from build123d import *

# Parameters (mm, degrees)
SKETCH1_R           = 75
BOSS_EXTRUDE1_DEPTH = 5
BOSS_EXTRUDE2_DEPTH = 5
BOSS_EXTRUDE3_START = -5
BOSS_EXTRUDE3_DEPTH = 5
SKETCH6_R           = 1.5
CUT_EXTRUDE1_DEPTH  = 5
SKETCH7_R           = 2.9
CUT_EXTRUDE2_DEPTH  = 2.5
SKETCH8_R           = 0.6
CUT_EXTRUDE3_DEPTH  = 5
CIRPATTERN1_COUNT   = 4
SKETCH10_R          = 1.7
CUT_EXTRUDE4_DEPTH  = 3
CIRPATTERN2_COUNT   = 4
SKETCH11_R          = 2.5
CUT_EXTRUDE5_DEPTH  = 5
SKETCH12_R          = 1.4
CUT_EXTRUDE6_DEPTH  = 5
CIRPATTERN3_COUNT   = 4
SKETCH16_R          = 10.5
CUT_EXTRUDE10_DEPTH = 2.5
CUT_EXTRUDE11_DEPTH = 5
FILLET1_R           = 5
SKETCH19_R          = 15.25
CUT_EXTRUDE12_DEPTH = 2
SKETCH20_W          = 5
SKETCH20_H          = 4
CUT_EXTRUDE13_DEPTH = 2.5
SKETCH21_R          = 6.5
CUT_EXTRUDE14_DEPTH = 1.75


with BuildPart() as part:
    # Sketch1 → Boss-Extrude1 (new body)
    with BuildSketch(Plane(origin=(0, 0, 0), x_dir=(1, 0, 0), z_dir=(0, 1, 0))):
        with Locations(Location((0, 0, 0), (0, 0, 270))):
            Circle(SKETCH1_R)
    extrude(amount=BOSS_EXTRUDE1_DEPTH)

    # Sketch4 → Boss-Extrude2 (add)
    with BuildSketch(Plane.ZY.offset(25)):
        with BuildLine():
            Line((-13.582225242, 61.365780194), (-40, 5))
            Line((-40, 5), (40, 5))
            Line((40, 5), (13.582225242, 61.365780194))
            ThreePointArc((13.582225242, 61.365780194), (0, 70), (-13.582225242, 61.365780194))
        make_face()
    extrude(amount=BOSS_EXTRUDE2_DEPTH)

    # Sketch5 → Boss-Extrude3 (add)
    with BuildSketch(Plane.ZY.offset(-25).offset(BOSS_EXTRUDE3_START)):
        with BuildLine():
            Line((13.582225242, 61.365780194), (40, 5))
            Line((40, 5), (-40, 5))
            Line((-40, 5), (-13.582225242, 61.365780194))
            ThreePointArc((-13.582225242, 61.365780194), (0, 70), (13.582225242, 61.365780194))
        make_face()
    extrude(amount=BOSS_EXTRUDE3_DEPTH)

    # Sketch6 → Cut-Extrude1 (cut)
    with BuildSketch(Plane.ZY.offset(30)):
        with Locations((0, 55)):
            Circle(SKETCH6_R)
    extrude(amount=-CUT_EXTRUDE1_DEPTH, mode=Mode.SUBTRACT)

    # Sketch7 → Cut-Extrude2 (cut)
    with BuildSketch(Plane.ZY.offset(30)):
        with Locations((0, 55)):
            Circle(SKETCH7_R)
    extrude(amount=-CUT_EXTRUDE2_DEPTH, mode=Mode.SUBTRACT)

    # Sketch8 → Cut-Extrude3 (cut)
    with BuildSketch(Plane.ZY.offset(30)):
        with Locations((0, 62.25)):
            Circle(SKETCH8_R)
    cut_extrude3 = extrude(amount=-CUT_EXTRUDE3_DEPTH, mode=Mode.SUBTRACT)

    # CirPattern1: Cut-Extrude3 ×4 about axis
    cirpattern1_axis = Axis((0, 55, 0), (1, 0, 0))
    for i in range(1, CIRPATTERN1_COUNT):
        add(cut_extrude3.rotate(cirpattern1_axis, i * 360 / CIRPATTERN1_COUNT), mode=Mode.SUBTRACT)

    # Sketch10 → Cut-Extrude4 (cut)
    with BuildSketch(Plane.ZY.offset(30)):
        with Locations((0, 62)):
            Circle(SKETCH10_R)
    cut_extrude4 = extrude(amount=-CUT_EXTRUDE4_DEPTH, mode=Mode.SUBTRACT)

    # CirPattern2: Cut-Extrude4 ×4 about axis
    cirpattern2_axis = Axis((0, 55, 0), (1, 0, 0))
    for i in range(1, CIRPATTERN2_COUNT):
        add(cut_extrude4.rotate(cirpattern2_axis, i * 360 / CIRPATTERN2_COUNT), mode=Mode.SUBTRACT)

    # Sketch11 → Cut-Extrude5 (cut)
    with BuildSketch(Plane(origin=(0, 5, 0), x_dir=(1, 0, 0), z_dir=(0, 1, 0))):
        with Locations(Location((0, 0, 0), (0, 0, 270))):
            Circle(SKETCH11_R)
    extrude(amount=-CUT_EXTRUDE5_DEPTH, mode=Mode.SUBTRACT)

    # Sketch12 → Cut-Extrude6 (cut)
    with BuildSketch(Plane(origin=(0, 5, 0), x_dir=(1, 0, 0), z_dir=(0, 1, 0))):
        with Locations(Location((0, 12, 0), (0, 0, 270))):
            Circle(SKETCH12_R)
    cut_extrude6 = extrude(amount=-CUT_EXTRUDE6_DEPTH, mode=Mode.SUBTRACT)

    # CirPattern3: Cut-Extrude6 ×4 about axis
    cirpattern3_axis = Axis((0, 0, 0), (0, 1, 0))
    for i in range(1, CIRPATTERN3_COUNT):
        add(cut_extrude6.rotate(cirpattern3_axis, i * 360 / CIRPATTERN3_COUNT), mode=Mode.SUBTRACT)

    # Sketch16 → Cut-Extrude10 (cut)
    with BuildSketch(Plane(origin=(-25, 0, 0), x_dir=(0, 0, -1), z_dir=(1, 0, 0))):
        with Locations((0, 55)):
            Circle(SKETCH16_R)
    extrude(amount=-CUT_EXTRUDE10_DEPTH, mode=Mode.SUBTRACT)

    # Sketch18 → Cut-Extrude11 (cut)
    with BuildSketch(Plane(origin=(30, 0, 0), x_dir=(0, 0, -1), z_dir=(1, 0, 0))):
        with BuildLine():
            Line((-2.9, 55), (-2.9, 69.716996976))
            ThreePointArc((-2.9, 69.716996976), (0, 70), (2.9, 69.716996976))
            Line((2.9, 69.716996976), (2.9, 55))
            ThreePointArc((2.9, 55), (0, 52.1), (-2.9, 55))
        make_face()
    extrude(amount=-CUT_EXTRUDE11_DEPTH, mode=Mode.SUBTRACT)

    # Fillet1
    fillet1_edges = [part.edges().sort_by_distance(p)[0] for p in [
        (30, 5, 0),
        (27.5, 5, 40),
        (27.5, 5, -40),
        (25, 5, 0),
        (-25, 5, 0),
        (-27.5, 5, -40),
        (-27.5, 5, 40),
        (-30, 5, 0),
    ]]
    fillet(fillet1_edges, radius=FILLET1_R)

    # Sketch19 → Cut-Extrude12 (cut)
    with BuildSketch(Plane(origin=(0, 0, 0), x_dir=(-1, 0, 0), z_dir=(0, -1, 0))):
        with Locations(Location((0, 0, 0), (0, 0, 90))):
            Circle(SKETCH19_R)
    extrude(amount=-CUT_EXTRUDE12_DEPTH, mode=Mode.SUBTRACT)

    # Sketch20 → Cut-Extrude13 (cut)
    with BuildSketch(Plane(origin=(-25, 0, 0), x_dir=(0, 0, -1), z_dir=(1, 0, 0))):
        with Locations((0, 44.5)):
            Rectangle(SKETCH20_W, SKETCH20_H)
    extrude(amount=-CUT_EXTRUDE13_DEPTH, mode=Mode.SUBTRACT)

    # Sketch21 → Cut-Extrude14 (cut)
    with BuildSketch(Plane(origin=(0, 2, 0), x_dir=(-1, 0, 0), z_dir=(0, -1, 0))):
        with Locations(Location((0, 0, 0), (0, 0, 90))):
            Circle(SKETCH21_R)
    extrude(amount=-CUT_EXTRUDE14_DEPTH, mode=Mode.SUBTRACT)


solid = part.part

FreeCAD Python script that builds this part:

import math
import FreeCAD as App
import Part
import Sketcher

V = App.Vector
Q = App.Units.Quantity


def edges_at(feature, points):
    """Names of the edges that pass closest to the given points."""
    edges = feature.Shape.Edges
    near = lambda p: min(range(len(edges)), key=lambda i: edges[i].distToShape(Part.Vertex(*p))[0])
    return sorted({f"Edge{near(p) + 1}" for p in points})


def add_polygon(sketch, points):
    """Adds a closed chain of lines whose ends are joined by coincident constraints."""
    first, n = sketch.GeometryCount, len(points)
    for a, b in zip(points, points[1:] + points[:1]):
        sketch.addGeometry(Part.LineSegment(App.Vector(*a, 0), App.Vector(*b, 0)), False)
    for i in range(n):
        sketch.addConstraint(Sketcher.Constraint("Coincident", first + i, 2, first + (i + 1) % n, 1))

doc = App.newDocument("Part")
body = doc.addObject("PartDesign::Body", "Body")

sketch1 = body.newObject("Sketcher::SketchObject", "Sketch")
sketch1.AttachmentSupport = (doc.getObject("XZ_Plane"), [""])
sketch1.MapMode = "FlatFace"
sketch1.addGeometry(Part.Circle(V(0, 0, 0), V(0, 0, 1), 75), False)
sketch1.addConstraint(Sketcher.Constraint("Coincident", 0, 3, -1, 1))
sketch1.addConstraint(Sketcher.Constraint("Diameter", 0, Q("150 mm")))
pad1 = body.newObject("PartDesign::Pad", "Pad")
pad1.Profile = sketch1
pad1.Length = 5
pad1.Reversed = True

sketch2 = body.newObject("Sketcher::SketchObject", "Sketch001")
sketch2.AttachmentSupport = (doc.getObject("YZ_Plane"), [""])
sketch2.MapMode = "FlatFace"
sketch2.AttachmentOffset = App.Placement(V(0, 0, -25), App.Rotation())
sketch2.addGeometry(Part.LineSegment(V(61, -14, 0), V(5, -40, 0)), False)
sketch2.addGeometry(Part.LineSegment(V(5, -40, 0), V(5, 40, 0)), False)
sketch2.addGeometry(Part.LineSegment(V(5, 40, 0), V(61, 14, 0)), False)
sketch2.addGeometry(Part.ArcOfCircle(Part.Circle(V(55, 0, 0), V(0, 0, 1), 15), math.radians(-65), math.radians(65)), False)
sketch2.addConstraint(Sketcher.Constraint("Coincident", 0, 2, 1, 1))
sketch2.addConstraint(Sketcher.Constraint("Coincident", 1, 2, 2, 1))
sketch2.addConstraint(Sketcher.Constraint("Tangent", 2, 2, 3, 2))
sketch2.addConstraint(Sketcher.Constraint("Tangent", 3, 1, 0, 1))
sketch2.addConstraint(Sketcher.Constraint("Vertical", 1))
sketch2.addConstraint(Sketcher.Constraint("Symmetric", 2, 2, 3, 1, -1))
sketch2.addConstraint(Sketcher.Constraint("Radius", 3, Q("15 mm")))
sketch2.addConstraint(Sketcher.Constraint("DistanceY", 1, 1, 1, 2, Q("80 mm")))
sketch2.addConstraint(Sketcher.Constraint("DistanceX", -1, 1, 3, 3, Q("55 mm")))
sketch2.addConstraint(Sketcher.Constraint("DistanceX", -1, 1, 0, 2, Q("5 mm")))
pad2 = body.newObject("PartDesign::Pad", "Pad001")
pad2.Profile = sketch2
pad2.Length = 5
pad2.Reversed = True

sketch3 = body.newObject("Sketcher::SketchObject", "Sketch002")
sketch3.AttachmentSupport = (doc.getObject("YZ_Plane"), [""])
sketch3.MapMode = "FlatFace"
sketch3.AttachmentOffset = App.Placement(V(0, 0, 30), App.Rotation())
sketch3.addGeometry(Part.LineSegment(V(5, 40, 0), V(61, 14, 0)), False)
sketch3.addGeometry(Part.ArcOfCircle(Part.Circle(V(55, 0, 0), V(0, 0, 1), 15), math.radians(-65), math.radians(65)), False)
sketch3.addGeometry(Part.LineSegment(V(61, -14, 0), V(5, -40, 0)), False)
sketch3.addGeometry(Part.LineSegment(V(5, -40, 0), V(5, 40, 0)), False)
sketch3.addConstraint(Sketcher.Constraint("Tangent", 0, 2, 1, 2))
sketch3.addConstraint(Sketcher.Constraint("Tangent", 1, 1, 2, 1))
sketch3.addConstraint(Sketcher.Constraint("Coincident", 2, 2, 3, 1))
sketch3.addConstraint(Sketcher.Constraint("Coincident", 3, 2, 0, 1))
sketch3.addConstraint(Sketcher.Constraint("Vertical", 3))
sketch3.addConstraint(Sketcher.Constraint("Symmetric", 0, 2, 1, 1, -1))
sketch3.addConstraint(Sketcher.Constraint("Radius", 1, Q("15 mm")))
sketch3.addConstraint(Sketcher.Constraint("DistanceY", 3, 1, 3, 2, Q("80 mm")))
sketch3.addConstraint(Sketcher.Constraint("DistanceX", -1, 1, 1, 3, Q("55 mm")))
sketch3.addConstraint(Sketcher.Constraint("DistanceX", -1, 1, 2, 2, Q("5 mm")))
pad3 = body.newObject("PartDesign::Pad", "Pad002")
pad3.Profile = sketch3
pad3.Length = 5
pad3.Reversed = True

sketch4 = body.newObject("Sketcher::SketchObject", "Sketch003")
sketch4.AttachmentSupport = (doc.getObject("YZ_Plane"), [""])
sketch4.MapMode = "FlatFace"
sketch4.AttachmentOffset = App.Placement(V(0, 0, -30), App.Rotation())
sketch4.addGeometry(Part.Circle(V(55, 0, 0), V(0, 0, 1), 1.5), False)
sketch4.addConstraint(Sketcher.Constraint("PointOnObject", 0, 3, -1))
sketch4.addConstraint(Sketcher.Constraint("Diameter", 0, Q("3 mm")))
sketch4.addConstraint(Sketcher.Constraint("DistanceX", -1, 1, 0, 3, Q("55 mm")))
pocket1 = body.newObject("PartDesign::Pocket", "Pocket")
pocket1.Profile = sketch4
pocket1.Length = 5
pocket1.Reversed = True

sketch5 = body.newObject("Sketcher::SketchObject", "Sketch004")
sketch5.AttachmentSupport = (doc.getObject("YZ_Plane"), [""])
sketch5.MapMode = "FlatFace"
sketch5.AttachmentOffset = App.Placement(V(0, 0, -30), App.Rotation())
sketch5.addGeometry(Part.Circle(V(55, 0, 0), V(0, 0, 1), 2.9), False)
sketch5.addConstraint(Sketcher.Constraint("PointOnObject", 0, 3, -1))
sketch5.addConstraint(Sketcher.Constraint("Diameter", 0, Q("5.8 mm")))
sketch5.addConstraint(Sketcher.Constraint("DistanceX", -1, 1, 0, 3, Q("55 mm")))
pocket2 = body.newObject("PartDesign::Pocket", "Pocket001")
pocket2.Profile = sketch5
pocket2.Length = 2.5
pocket2.Reversed = True

sketch6 = body.newObject("Sketcher::SketchObject", "Sketch005")
sketch6.AttachmentSupport = (doc.getObject("YZ_Plane"), [""])
sketch6.MapMode = "FlatFace"
sketch6.AttachmentOffset = App.Placement(V(0, 0, -30), App.Rotation())
sketch6.addGeometry(Part.Circle(V(62.2, 0, 0), V(0, 0, 1), 0.6), False)
sketch6.addConstraint(Sketcher.Constraint("PointOnObject", 0, 3, -1))
sketch6.addConstraint(Sketcher.Constraint("Diameter", 0, Q("1.2 mm")))
sketch6.addConstraint(Sketcher.Constraint("DistanceX", -1, 1, 0, 3, Q("62.25 mm")))
pocket3 = body.newObject("PartDesign::Pocket", "Pocket002")
pocket3.Profile = sketch6
pocket3.Length = 5
pocket3.Reversed = True
doc.recompute()

datumline = body.newObject("PartDesign::Line", "DatumLine")
datumline.Placement = App.Placement(V(0, 55, 0), App.Rotation(V(0, 0, 1), V(1, 0, 0)))
polarpattern = body.newObject("PartDesign::PolarPattern", "PolarPattern")
polarpattern.Originals = [pocket3]
polarpattern.Axis = (datumline, [""])
polarpattern.Angle = 360
polarpattern.Occurrences = 4
body.Tip = polarpattern

sketch7 = body.newObject("Sketcher::SketchObject", "Sketch006")
sketch7.AttachmentSupport = (doc.getObject("YZ_Plane"), [""])
sketch7.MapMode = "FlatFace"
sketch7.AttachmentOffset = App.Placement(V(0, 0, -30), App.Rotation())
sketch7.addGeometry(Part.Circle(V(62, 0, 0), V(0, 0, 1), 1.7), False)
sketch7.addConstraint(Sketcher.Constraint("PointOnObject", 0, 3, -1))
sketch7.addConstraint(Sketcher.Constraint("Diameter", 0, Q("3.4 mm")))
sketch7.addConstraint(Sketcher.Constraint("DistanceX", -1, 1, 0, 3, Q("62 mm")))
pocket4 = body.newObject("PartDesign::Pocket", "Pocket003")
pocket4.Profile = sketch7
pocket4.Length = 3
pocket4.Reversed = True
doc.recompute()

datumline2 = body.newObject("PartDesign::Line", "DatumLine001")
datumline2.Placement = App.Placement(V(0, 55, 0), App.Rotation(V(0, 0, 1), V(1, 0, 0)))
polarpattern2 = body.newObject("PartDesign::PolarPattern", "PolarPattern001")
polarpattern2.Originals = [pocket4]
polarpattern2.Axis = (datumline2, [""])
polarpattern2.Angle = 360
polarpattern2.Occurrences = 4
body.Tip = polarpattern2

sketch8 = body.newObject("Sketcher::SketchObject", "Sketch007")
sketch8.AttachmentSupport = (doc.getObject("XZ_Plane"), [""])
sketch8.MapMode = "FlatFace"
sketch8.AttachmentOffset = App.Placement(V(0, 0, -5), App.Rotation())
sketch8.addGeometry(Part.Circle(V(0, 0, 0), V(0, 0, 1), 2.5), False)
sketch8.addConstraint(Sketcher.Constraint("Coincident", 0, 3, -1, 1))
sketch8.addConstraint(Sketcher.Constraint("Diameter", 0, Q("5 mm")))
pocket5 = body.newObject("PartDesign::Pocket", "Pocket004")
pocket5.Profile = sketch8
pocket5.Length = 5
pocket5.Reversed = True

sketch9 = body.newObject("Sketcher::SketchObject", "Sketch008")
sketch9.AttachmentSupport = (doc.getObject("XZ_Plane"), [""])
sketch9.MapMode = "FlatFace"
sketch9.AttachmentOffset = App.Placement(V(0, 0, -5), App.Rotation())
sketch9.addGeometry(Part.Circle(V(0, -12, 0), V(0, 0, 1), 1.4), False)
sketch9.addConstraint(Sketcher.Constraint("PointOnObject", 0, 3, -2))
sketch9.addConstraint(Sketcher.Constraint("Diameter", 0, Q("2.8 mm")))
sketch9.addConstraint(Sketcher.Constraint("DistanceY", 0, 3, -1, 1, Q("12 mm")))
pocket6 = body.newObject("PartDesign::Pocket", "Pocket005")
pocket6.Profile = sketch9
pocket6.Length = 5
pocket6.Reversed = True
doc.recompute()

polarpattern3 = body.newObject("PartDesign::PolarPattern", "PolarPattern002")
polarpattern3.Originals = [pocket6]
polarpattern3.Axis = (doc.getObject("Y_Axis"), [""])
polarpattern3.Angle = 360
polarpattern3.Occurrences = 4
body.Tip = polarpattern3

sketch10 = body.newObject("Sketcher::SketchObject", "Sketch009")
sketch10.AttachmentSupport = (doc.getObject("YZ_Plane"), [""])
sketch10.MapMode = "FlatFace"
sketch10.AttachmentOffset = App.Placement(V(0, 0, -25), App.Rotation())
sketch10.addGeometry(Part.Circle(V(55, 0, 0), V(0, 0, 1), 10), False)
sketch10.addConstraint(Sketcher.Constraint("PointOnObject", 0, 3, -1))
sketch10.addConstraint(Sketcher.Constraint("Diameter", 0, Q("21 mm")))
sketch10.addConstraint(Sketcher.Constraint("DistanceX", -1, 1, 0, 3, Q("55 mm")))
pocket7 = body.newObject("PartDesign::Pocket", "Pocket006")
pocket7.Profile = sketch10
pocket7.Length = 2.5

sketch11 = body.newObject("Sketcher::SketchObject", "Sketch010")
sketch11.AttachmentSupport = (doc.getObject("YZ_Plane"), [""])
sketch11.MapMode = "FlatFace"
sketch11.AttachmentOffset = App.Placement(V(0, 0, 30), App.Rotation())
sketch11.addGeometry(Part.LineSegment(V(69.7, 2.9, 0), V(55, 2.9, 0)), False)
sketch11.addGeometry(Part.ArcOfCircle(Part.Circle(V(55, 0, 0), V(0, 0, 1), 2.9), math.radians(90), math.radians(270)), False)
sketch11.addGeometry(Part.LineSegment(V(55, -2.9, 0), V(69.7, -2.9, 0)), False)
sketch11.addGeometry(Part.ArcOfCircle(Part.Circle(V(55, 0, 0), V(0, 0, 1), 15), math.radians(-11), math.radians(11)), False)
sketch11.addConstraint(Sketcher.Constraint("Tangent", 0, 2, 1, 1))
sketch11.addConstraint(Sketcher.Constraint("Tangent", 1, 2, 2, 1))
sketch11.addConstraint(Sketcher.Constraint("Coincident", 2, 2, 3, 1))
sketch11.addConstraint(Sketcher.Constraint("Coincident", 3, 2, 0, 1))
sketch11.addConstraint(Sketcher.Constraint("Horizontal", 0))
sketch11.addConstraint(Sketcher.Constraint("Horizontal", 2))
sketch11.addConstraint(Sketcher.Constraint("Coincident", 3, 3, 1, 3))
sketch11.addConstraint(Sketcher.Constraint("PointOnObject", 1, 3, -1))
sketch11.addConstraint(Sketcher.Constraint("Radius", 3, Q("15 mm")))
sketch11.addConstraint(Sketcher.Constraint("Radius", 1, Q("2.9 mm")))
sketch11.addConstraint(Sketcher.Constraint("DistanceX", -1, 1, 1, 3, Q("55 mm")))
pocket8 = body.newObject("PartDesign::Pocket", "Pocket007")
pocket8.Profile = sketch11
pocket8.Length = 5
doc.recompute()

fillet = body.newObject("PartDesign::Fillet", "Fillet")
fillet.Base = (pocket8, edges_at(pocket8, [
    (30, 5, 0),
    (27.5, 5, 40),
    (27.5, 5, -40),
    (25, 5, 0),
    (-25, 5, 0),
    (-27.5, 5, -40),
    (-27.5, 5, 40),
    (-30, 5, 0),
]))
fillet.Radius = 5

sketch12 = body.newObject("Sketcher::SketchObject", "Sketch011")
sketch12.AttachmentSupport = (doc.getObject("XZ_Plane"), [""])
sketch12.MapMode = "FlatFace"
sketch12.addGeometry(Part.Circle(V(0, 0, 0), V(0, 0, 1), 15), False)
sketch12.addConstraint(Sketcher.Constraint("Coincident", 0, 3, -1, 1))
sketch12.addConstraint(Sketcher.Constraint("Diameter", 0, Q("30.5 mm")))
pocket9 = body.newObject("PartDesign::Pocket", "Pocket008")
pocket9.Profile = sketch12
pocket9.Length = 2

sketch13 = body.newObject("Sketcher::SketchObject", "Sketch012")
sketch13.AttachmentSupport = (doc.getObject("YZ_Plane"), [""])
sketch13.MapMode = "FlatFace"
sketch13.AttachmentOffset = App.Placement(V(0, 0, -25), App.Rotation())
add_polygon(sketch13, [(46.5, 2.5), (42.5, 2.5), (42.5, -2.5), (46.5, -2.5)])
sketch13.addConstraint(Sketcher.Constraint("Horizontal", 0))
sketch13.addConstraint(Sketcher.Constraint("Vertical", 1))
sketch13.addConstraint(Sketcher.Constraint("Horizontal", 2))
sketch13.addConstraint(Sketcher.Constraint("Vertical", 3))
sketch13.addConstraint(Sketcher.Constraint("DistanceX", 0, 2, 0, 1, Q("4 mm")))
sketch13.addConstraint(Sketcher.Constraint("DistanceY", 1, 2, 1, 1, Q("5 mm")))
sketch13.addConstraint(Sketcher.Constraint("DistanceX", -1, 1, 0, 2, Q("42.5 mm")))
sketch13.addConstraint(Sketcher.Constraint("DistanceY", -1, 1, 0, 2, Q("2.5 mm")))
pocket10 = body.newObject("PartDesign::Pocket", "Pocket009")
pocket10.Profile = sketch13
pocket10.Length = 2.5

sketch14 = body.newObject("Sketcher::SketchObject", "Sketch013")
sketch14.AttachmentSupport = (doc.getObject("XZ_Plane"), [""])
sketch14.MapMode = "FlatFace"
sketch14.AttachmentOffset = App.Placement(V(0, 0, -2), App.Rotation())
sketch14.addGeometry(Part.Circle(V(0, 0, 0), V(0, 0, 1), 6), False)
sketch14.addConstraint(Sketcher.Constraint("Coincident", 0, 3, -1, 1))
sketch14.addConstraint(Sketcher.Constraint("Diameter", 0, Q("13 mm")))
pocket11 = body.newObject("PartDesign::Pocket", "Pocket010")
pocket11.Profile = sketch14
pocket11.Length = 1.75

doc.recompute()
